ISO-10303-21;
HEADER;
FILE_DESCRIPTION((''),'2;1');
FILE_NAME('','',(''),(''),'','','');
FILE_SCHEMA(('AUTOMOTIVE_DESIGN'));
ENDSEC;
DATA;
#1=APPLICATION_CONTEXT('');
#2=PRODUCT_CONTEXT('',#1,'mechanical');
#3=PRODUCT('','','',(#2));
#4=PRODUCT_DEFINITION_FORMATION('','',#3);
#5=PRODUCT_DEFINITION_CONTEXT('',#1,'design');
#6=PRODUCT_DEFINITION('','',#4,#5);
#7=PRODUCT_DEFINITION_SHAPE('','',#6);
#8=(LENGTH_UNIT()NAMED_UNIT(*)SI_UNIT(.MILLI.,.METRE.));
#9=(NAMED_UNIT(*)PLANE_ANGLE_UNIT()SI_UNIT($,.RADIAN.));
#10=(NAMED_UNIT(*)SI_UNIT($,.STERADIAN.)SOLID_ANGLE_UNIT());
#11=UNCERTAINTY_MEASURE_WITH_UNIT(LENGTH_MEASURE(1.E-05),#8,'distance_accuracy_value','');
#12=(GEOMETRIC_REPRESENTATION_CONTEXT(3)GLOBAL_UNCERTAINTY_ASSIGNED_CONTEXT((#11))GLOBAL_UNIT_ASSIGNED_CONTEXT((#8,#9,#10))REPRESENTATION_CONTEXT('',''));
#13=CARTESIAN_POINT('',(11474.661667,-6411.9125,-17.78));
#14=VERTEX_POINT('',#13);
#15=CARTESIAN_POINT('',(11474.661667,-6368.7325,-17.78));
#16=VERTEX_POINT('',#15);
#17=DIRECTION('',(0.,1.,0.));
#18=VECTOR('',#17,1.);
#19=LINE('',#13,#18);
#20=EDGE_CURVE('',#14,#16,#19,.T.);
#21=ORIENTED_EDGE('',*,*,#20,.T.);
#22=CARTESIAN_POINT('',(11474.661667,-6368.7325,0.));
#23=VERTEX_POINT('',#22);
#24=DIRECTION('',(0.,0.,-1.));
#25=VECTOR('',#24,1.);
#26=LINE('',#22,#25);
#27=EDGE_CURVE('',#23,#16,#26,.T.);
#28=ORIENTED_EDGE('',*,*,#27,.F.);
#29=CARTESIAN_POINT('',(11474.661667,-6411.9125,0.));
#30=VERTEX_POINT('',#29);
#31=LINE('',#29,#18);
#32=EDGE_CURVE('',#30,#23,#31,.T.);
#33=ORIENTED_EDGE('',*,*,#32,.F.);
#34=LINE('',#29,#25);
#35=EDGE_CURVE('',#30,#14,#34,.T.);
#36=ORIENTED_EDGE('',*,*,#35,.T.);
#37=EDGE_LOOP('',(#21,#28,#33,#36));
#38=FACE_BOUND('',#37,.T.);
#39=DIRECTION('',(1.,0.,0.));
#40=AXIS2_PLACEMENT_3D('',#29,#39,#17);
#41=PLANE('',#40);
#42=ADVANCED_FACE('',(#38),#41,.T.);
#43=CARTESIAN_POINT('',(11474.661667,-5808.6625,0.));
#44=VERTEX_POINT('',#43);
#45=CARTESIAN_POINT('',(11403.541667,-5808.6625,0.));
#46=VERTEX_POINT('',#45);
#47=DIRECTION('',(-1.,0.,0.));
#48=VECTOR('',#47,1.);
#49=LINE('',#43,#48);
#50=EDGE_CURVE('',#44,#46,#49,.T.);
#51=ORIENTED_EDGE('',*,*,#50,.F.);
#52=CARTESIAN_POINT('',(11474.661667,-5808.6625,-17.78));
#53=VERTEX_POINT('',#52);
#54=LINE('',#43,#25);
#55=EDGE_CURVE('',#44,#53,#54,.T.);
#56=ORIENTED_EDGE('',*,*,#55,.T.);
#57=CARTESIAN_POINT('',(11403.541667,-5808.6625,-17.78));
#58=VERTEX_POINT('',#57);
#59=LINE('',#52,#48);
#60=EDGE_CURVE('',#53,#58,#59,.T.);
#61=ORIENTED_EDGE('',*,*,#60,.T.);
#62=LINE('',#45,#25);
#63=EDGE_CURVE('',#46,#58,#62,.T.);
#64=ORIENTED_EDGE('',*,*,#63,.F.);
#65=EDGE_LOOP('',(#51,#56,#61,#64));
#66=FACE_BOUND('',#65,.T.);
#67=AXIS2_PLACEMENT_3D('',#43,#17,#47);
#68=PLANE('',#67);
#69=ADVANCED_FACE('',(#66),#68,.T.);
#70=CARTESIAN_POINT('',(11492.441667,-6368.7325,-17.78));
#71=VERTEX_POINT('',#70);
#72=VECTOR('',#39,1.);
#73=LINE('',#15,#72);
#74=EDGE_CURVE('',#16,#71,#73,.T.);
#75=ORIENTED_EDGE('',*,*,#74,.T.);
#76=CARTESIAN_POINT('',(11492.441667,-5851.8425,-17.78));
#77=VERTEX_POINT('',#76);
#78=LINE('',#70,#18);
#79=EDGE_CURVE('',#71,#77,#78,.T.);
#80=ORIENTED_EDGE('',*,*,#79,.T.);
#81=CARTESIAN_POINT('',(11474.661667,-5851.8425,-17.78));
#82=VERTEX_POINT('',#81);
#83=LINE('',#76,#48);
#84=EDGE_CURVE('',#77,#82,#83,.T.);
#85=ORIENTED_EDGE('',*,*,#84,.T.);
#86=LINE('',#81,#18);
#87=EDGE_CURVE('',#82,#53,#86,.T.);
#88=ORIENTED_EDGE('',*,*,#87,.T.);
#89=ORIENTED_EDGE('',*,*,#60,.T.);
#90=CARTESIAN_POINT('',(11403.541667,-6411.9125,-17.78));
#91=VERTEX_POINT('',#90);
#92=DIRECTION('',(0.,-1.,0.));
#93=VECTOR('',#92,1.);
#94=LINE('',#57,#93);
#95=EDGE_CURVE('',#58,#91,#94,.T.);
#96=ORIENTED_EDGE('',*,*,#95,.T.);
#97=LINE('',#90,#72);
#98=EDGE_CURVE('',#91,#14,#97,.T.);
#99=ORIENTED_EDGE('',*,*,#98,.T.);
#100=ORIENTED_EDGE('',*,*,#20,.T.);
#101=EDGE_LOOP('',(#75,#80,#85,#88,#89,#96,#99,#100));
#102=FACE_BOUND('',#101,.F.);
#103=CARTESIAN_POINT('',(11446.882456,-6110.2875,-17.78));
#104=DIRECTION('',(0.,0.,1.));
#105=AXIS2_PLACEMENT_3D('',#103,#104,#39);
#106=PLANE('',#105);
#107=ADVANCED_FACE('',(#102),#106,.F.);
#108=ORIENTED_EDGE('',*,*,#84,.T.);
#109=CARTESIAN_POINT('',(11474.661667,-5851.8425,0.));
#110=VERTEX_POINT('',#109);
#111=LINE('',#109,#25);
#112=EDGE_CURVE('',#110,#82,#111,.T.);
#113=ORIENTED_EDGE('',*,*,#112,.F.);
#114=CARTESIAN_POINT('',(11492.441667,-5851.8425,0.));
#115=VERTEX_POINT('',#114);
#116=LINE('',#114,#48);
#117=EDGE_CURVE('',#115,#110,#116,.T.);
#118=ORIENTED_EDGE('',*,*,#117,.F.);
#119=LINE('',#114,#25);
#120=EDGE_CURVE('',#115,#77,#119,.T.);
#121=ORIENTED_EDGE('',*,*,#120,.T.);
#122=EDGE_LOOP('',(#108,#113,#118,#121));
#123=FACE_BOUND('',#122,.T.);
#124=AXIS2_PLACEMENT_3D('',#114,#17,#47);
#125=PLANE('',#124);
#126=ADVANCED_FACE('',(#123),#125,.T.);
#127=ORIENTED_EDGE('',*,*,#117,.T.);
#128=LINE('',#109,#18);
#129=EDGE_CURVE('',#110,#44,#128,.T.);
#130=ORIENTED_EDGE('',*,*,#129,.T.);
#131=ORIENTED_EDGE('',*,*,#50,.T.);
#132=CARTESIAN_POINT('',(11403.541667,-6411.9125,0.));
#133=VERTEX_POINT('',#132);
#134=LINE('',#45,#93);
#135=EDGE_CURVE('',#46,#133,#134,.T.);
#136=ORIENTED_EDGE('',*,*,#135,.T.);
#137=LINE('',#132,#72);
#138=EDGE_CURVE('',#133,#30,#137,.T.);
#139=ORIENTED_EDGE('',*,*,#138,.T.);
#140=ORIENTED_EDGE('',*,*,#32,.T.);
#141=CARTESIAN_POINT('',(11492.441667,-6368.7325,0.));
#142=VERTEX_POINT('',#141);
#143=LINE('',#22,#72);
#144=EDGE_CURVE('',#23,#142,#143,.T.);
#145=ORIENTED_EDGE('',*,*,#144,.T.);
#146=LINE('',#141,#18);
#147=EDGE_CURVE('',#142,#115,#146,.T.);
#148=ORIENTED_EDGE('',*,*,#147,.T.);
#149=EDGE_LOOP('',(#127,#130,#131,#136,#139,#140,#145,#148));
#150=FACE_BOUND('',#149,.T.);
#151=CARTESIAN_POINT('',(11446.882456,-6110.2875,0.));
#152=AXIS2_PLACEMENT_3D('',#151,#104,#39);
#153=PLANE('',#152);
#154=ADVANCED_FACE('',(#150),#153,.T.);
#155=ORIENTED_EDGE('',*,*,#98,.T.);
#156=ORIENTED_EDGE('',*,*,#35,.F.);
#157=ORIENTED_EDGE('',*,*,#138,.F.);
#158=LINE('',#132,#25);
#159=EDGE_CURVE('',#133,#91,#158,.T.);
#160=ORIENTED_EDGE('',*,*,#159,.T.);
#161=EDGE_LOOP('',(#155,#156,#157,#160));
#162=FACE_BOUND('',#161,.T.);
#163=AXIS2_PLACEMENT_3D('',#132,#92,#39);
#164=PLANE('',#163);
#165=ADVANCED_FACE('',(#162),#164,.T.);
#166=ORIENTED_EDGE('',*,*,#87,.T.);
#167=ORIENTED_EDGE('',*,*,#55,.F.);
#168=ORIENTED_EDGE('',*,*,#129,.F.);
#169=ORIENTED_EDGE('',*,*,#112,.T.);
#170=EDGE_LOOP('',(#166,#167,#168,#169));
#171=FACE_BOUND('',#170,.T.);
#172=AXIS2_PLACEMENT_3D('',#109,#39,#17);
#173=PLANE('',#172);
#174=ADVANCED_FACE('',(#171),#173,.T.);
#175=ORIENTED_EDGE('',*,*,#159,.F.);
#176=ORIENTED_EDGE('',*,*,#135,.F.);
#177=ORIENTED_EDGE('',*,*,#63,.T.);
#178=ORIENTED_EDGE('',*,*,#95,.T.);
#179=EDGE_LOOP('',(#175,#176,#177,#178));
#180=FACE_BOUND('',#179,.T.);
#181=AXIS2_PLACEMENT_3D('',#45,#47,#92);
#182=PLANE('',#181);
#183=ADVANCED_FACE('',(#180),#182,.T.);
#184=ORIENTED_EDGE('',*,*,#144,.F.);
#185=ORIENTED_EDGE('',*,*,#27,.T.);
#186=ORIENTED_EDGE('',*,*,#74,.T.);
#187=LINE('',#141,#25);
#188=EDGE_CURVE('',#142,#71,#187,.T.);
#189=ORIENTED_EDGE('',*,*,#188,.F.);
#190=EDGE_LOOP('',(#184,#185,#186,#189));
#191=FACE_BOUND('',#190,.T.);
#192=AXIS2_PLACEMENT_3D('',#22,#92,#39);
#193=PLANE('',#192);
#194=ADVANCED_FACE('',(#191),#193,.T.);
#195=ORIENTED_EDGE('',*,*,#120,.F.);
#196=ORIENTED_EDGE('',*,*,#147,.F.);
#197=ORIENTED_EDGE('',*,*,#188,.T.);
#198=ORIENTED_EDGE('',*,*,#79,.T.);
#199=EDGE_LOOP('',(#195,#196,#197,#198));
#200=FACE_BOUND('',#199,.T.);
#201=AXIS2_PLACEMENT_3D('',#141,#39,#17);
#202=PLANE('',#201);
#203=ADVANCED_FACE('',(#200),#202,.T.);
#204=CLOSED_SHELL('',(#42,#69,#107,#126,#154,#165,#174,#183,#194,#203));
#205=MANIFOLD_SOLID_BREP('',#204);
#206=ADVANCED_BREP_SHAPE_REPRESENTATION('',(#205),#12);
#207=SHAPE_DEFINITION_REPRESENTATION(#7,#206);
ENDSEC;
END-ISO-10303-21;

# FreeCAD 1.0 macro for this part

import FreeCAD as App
import Part
import Sketcher
from FreeCAD import Vector
Q = App.Units.Quantity


def add_polygon(sketch, points):
    """Adds a closed chain of lines whose ends are joined by coincident constraints."""
    first, n = sketch.GeometryCount, len(points)
    for a, b in zip(points, points[1:] + points[:1]):
        sketch.addGeometry(Part.LineSegment(App.Vector(*a, 0), App.Vector(*b, 0)), False)
    for i in range(n):
        sketch.addConstraint(Sketcher.Constraint("Coincident", first + i, 2, first + (i + 1) % n, 1))

doc = App.newDocument("Part")
body = doc.addObject("PartDesign::Body", "Body")

sketch1 = body.newObject("Sketcher::SketchObject", "Sketch")
sketch1.AttachmentSupport = (doc.getObject("XY_Plane"), [""])
sketch1.MapMode = "FlatFace"
add_polygon(sketch1, [(11404, -6412), (11475, -6412), (11475, -6369), (11492, -6369), (11492, -5852), (11475, -5852), (11475, -5809), (11404, -5809)])
sketch1.addConstraint([
    Sketcher.Constraint("Horizontal", 0),
    Sketcher.Constraint("Vertical", 1),
    Sketcher.Constraint("Horizontal", 2),
    Sketcher.Constraint("Vertical", 3),
    Sketcher.Constraint("Horizontal", 4),
    Sketcher.Constraint("Vertical", 5),
    Sketcher.Constraint("Horizontal", 6),
    Sketcher.Constraint("Vertical", 7),
    Sketcher.Constraint("Vertical", 1, 2, 4, 2),
    Sketcher.Constraint("Equal", 1, 5),
    Sketcher.Constraint("DistanceX", 0, 1, 0, 2, Q("2.8 in")),
    Sketcher.Constraint("DistanceX", 2, 1, 2, 2, Q("0.7 in")),
    Sketcher.Constraint("DistanceY", 1, 1, 1, 2, Q("1.7 in")),
    Sketcher.Constraint("DistanceY", 3, 1, 3, 2, Q("20.35 in")),
    Sketcher.Constraint("DistanceY", 0, 2, -1, 1, Q("252.4375 in")),
    Sketcher.Constraint("DistanceX", -1, 1, 0, 2, Q("11474.661667 mm")),
])
pad1 = body.newObject("PartDesign::Pad", "Pad")
pad1.Profile = sketch1
pad1.Length = Q("0.7 in")
pad1.Reversed = True

doc.recompute()
